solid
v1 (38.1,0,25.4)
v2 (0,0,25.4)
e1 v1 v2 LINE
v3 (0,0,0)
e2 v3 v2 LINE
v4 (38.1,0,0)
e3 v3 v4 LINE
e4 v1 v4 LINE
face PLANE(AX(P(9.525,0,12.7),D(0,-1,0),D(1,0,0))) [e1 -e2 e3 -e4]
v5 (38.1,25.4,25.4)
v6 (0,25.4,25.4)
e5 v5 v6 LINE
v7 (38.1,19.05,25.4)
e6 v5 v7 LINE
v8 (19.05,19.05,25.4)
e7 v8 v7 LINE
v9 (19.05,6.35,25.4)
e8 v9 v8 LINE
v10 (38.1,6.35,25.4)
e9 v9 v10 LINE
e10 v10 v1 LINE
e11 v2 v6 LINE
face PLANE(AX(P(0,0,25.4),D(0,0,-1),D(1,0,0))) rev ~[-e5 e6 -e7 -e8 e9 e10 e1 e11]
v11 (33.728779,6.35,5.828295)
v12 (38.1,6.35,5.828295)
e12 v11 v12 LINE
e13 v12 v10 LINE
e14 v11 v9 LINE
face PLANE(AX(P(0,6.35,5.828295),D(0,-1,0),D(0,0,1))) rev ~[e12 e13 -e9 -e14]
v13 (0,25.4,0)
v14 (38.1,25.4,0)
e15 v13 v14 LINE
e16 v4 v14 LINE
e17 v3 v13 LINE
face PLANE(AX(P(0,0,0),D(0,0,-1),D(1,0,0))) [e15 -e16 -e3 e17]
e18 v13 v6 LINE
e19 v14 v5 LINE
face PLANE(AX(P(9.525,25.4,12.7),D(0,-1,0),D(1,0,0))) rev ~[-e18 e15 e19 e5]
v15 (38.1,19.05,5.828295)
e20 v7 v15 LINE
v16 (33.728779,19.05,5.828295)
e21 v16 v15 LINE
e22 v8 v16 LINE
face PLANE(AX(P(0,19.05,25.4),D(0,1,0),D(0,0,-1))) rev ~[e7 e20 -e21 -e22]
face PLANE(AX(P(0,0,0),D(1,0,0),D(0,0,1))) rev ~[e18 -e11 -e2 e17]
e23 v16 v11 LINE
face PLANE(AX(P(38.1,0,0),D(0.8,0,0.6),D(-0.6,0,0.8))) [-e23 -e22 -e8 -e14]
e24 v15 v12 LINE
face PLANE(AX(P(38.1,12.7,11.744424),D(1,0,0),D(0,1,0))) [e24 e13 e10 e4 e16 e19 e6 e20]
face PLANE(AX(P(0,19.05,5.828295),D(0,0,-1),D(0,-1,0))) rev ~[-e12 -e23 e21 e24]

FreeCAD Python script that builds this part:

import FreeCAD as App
import Part
import Sketcher
from FreeCAD import Vector
Q = App.Units.Quantity

doc = App.newDocument("Part")
body = doc.addObject("PartDesign::Body", "Body")

# Sketch on XZ plane
sketch1 = doc.addObject("Sketcher::SketchObject", "Sketch")
body.addObject(sketch1)
sketch1.AttachmentSupport = (doc.XZ_Plane, [""])
sketch1.MapMode = "FlatFace"
sketch1.addGeometry(Part.LineSegment(Vector(0, 25, 0), Vector(0, 0, 0)), False)
sketch1.addGeometry(Part.LineSegment(Vector(0, 0, 0), Vector(19, 0, 0)), False)
sketch1.addGeometry(Part.LineSegment(Vector(19, 0, 0), Vector(19, 25, 0)), False)
sketch1.addGeometry(Part.LineSegment(Vector(19, 25, 0), Vector(0, 25, 0)), False)
sketch1.addConstraint(Sketcher.Constraint("Coincident", 0, 2, 1, 1))
sketch1.addConstraint(Sketcher.Constraint("Coincident", 1, 2, 2, 1))
sketch1.addConstraint(Sketcher.Constraint("Coincident", 2, 2, 3, 1))
sketch1.addConstraint(Sketcher.Constraint("Coincident", 3, 2, 0, 1))
sketch1.addConstraint(Sketcher.Constraint("Vertical", 0))
sketch1.addConstraint(Sketcher.Constraint("Horizontal", 1))
sketch1.addConstraint(Sketcher.Constraint("Vertical", 2))
sketch1.addConstraint(Sketcher.Constraint("Horizontal", 3))
sketch1.addConstraint(Sketcher.Constraint("Coincident", 0, 2, -1, 1))
sketch1.addConstraint(Sketcher.Constraint("DistanceY", 0, 2, 0, 1, Q("1 in")))
sketch1.addConstraint(Sketcher.Constraint("DistanceX", 1, 1, 1, 2, Q("0.75 in")))
pad1 = doc.addObject("PartDesign::Pad", "Pad")
body.addObject(pad1)
pad1.Profile = sketch1
pad1.Length = Q("1 in")
pad1.Reversed = True

# Sketch on YZ plane
sketch2 = doc.addObject("Sketcher::SketchObject", "Sketch001")
body.addObject(sketch2)
sketch2.AttachmentSupport = (doc.YZ_Plane, [""])
sketch2.MapMode = "FlatFace"
sketch2.addGeometry(Part.LineSegment(Vector(0, 25, 0), Vector(0, 0, 0)), False)
sketch2.addGeometry(Part.LineSegment(Vector(0, 0, 0), Vector(25, 0, 0)), False)
sketch2.addGeometry(Part.LineSegment(Vector(25, 0, 0), Vector(25, 25, 0)), False)
sketch2.addGeometry(Part.LineSegment(Vector(25, 25, 0), Vector(19, 25, 0)), False)
sketch2.addGeometry(Part.LineSegment(Vector(19, 25, 0), Vector(19, 6, 0)), False)
sketch2.addGeometry(Part.LineSegment(Vector(19, 6, 0), Vector(6, 6, 0)), False)
sketch2.addGeometry(Part.LineSegment(Vector(6, 6, 0), Vector(6, 25, 0)), False)
sketch2.addGeometry(Part.LineSegment(Vector(6, 25, 0), Vector(0, 25, 0)), False)
sketch2.addConstraint(Sketcher.Constraint("Coincident", 0, 2, 1, 1))
sketch2.addConstraint(Sketcher.Constraint("Coincident", 1, 2, 2, 1))
sketch2.addConstraint(Sketcher.Constraint("Coincident", 2, 2, 3, 1))
sketch2.addConstraint(Sketcher.Constraint("Coincident", 3, 2, 4, 1))
sketch2.addConstraint(Sketcher.Constraint("Coincident", 4, 2, 5, 1))
sketch2.addConstraint(Sketcher.Constraint("Coincident", 5, 2, 6, 1))
sketch2.addConstraint(Sketcher.Constraint("Coincident", 6, 2, 7, 1))
sketch2.addConstraint(Sketcher.Constraint("Coincident", 7, 2, 0, 1))
sketch2.addConstraint(Sketcher.Constraint("Vertical", 0))
sketch2.addConstraint(Sketcher.Constraint("Horizontal", 1))
sketch2.addConstraint(Sketcher.Constraint("Vertical", 2))
sketch2.addConstraint(Sketcher.Constraint("Horizontal", 3))
sketch2.addConstraint(Sketcher.Constraint("Vertical", 4))
sketch2.addConstraint(Sketcher.Constraint("Horizontal", 5))
sketch2.addConstraint(Sketcher.Constraint("Vertical", 6))
sketch2.addConstraint(Sketcher.Constraint("Horizontal", 7))
sketch2.addConstraint(Sketcher.Constraint("Coincident", 0, 2, -1, 1))
sketch2.addConstraint(Sketcher.Constraint("Horizontal", 3, 2, 6, 2))
sketch2.addConstraint(Sketcher.Constraint("Equal", 3, 7))
sketch2.addConstraint(Sketcher.Constraint("Equal", 1, 0))
sketch2.addConstraint(Sketcher.Constraint("DistanceX", 1, 1, 1, 2, Q("1 in")))
sketch2.addConstraint(Sketcher.Constraint("DistanceX", 5, 2, 5, 1, Q("0.5 in")))
sketch2.addConstraint(Sketcher.Constraint("DistanceY", 4, 2, 4, 1, Q("19.571705 mm")))
pad2 = doc.addObject("PartDesign::Pad", "Pad001")
body.addObject(pad2)
pad2.Profile = sketch2
pad2.Length = Q("1.5 in")

# Sketch on XZ plane
sketch3 = doc.addObject("Sketcher::SketchObject", "Sketch002")
body.addObject(sketch3)
sketch3.AttachmentSupport = (doc.XZ_Plane, [""])
sketch3.MapMode = "FlatFace"
sketch3.addGeometry(Part.LineSegment(Vector(19, 25, 0), Vector(19, 0, 0)), False)
sketch3.addGeometry(Part.LineSegment(Vector(19, 0, 0), Vector(38, 0, 0)), False)
sketch3.addGeometry(Part.LineSegment(Vector(38, 0, 0), Vector(19, 25, 0)), False)
sketch3.addConstraint(Sketcher.Constraint("Coincident", 0, 2, 1, 1))
sketch3.addConstraint(Sketcher.Constraint("Coincident", 1, 2, 2, 1))
sketch3.addConstraint(Sketcher.Constraint("Coincident", 2, 2, 0, 1))
sketch3.addConstraint(Sketcher.Constraint("Vertical", 0))
sketch3.addConstraint(Sketcher.Constraint("Horizontal", 1))
sketch3.addConstraint(Sketcher.Constraint("PointOnObject", 0, 2, -1))
sketch3.addConstraint(Sketcher.Constraint("DistanceY", 0, 2, 0, 1, Q("1 in")))
sketch3.addConstraint(Sketcher.Constraint("DistanceX", 1, 1, 1, 2, Q("0.75 in")))
sketch3.addConstraint(Sketcher.Constraint("DistanceX", -1, 1, 1, 2, Q("1.5 in")))
pad3 = doc.addObject("PartDesign::Pad", "Pad002")
body.addObject(pad3)
pad3.Profile = sketch3
pad3.Length = Q("1 in")
pad3.Reversed = True

doc.recompute()
